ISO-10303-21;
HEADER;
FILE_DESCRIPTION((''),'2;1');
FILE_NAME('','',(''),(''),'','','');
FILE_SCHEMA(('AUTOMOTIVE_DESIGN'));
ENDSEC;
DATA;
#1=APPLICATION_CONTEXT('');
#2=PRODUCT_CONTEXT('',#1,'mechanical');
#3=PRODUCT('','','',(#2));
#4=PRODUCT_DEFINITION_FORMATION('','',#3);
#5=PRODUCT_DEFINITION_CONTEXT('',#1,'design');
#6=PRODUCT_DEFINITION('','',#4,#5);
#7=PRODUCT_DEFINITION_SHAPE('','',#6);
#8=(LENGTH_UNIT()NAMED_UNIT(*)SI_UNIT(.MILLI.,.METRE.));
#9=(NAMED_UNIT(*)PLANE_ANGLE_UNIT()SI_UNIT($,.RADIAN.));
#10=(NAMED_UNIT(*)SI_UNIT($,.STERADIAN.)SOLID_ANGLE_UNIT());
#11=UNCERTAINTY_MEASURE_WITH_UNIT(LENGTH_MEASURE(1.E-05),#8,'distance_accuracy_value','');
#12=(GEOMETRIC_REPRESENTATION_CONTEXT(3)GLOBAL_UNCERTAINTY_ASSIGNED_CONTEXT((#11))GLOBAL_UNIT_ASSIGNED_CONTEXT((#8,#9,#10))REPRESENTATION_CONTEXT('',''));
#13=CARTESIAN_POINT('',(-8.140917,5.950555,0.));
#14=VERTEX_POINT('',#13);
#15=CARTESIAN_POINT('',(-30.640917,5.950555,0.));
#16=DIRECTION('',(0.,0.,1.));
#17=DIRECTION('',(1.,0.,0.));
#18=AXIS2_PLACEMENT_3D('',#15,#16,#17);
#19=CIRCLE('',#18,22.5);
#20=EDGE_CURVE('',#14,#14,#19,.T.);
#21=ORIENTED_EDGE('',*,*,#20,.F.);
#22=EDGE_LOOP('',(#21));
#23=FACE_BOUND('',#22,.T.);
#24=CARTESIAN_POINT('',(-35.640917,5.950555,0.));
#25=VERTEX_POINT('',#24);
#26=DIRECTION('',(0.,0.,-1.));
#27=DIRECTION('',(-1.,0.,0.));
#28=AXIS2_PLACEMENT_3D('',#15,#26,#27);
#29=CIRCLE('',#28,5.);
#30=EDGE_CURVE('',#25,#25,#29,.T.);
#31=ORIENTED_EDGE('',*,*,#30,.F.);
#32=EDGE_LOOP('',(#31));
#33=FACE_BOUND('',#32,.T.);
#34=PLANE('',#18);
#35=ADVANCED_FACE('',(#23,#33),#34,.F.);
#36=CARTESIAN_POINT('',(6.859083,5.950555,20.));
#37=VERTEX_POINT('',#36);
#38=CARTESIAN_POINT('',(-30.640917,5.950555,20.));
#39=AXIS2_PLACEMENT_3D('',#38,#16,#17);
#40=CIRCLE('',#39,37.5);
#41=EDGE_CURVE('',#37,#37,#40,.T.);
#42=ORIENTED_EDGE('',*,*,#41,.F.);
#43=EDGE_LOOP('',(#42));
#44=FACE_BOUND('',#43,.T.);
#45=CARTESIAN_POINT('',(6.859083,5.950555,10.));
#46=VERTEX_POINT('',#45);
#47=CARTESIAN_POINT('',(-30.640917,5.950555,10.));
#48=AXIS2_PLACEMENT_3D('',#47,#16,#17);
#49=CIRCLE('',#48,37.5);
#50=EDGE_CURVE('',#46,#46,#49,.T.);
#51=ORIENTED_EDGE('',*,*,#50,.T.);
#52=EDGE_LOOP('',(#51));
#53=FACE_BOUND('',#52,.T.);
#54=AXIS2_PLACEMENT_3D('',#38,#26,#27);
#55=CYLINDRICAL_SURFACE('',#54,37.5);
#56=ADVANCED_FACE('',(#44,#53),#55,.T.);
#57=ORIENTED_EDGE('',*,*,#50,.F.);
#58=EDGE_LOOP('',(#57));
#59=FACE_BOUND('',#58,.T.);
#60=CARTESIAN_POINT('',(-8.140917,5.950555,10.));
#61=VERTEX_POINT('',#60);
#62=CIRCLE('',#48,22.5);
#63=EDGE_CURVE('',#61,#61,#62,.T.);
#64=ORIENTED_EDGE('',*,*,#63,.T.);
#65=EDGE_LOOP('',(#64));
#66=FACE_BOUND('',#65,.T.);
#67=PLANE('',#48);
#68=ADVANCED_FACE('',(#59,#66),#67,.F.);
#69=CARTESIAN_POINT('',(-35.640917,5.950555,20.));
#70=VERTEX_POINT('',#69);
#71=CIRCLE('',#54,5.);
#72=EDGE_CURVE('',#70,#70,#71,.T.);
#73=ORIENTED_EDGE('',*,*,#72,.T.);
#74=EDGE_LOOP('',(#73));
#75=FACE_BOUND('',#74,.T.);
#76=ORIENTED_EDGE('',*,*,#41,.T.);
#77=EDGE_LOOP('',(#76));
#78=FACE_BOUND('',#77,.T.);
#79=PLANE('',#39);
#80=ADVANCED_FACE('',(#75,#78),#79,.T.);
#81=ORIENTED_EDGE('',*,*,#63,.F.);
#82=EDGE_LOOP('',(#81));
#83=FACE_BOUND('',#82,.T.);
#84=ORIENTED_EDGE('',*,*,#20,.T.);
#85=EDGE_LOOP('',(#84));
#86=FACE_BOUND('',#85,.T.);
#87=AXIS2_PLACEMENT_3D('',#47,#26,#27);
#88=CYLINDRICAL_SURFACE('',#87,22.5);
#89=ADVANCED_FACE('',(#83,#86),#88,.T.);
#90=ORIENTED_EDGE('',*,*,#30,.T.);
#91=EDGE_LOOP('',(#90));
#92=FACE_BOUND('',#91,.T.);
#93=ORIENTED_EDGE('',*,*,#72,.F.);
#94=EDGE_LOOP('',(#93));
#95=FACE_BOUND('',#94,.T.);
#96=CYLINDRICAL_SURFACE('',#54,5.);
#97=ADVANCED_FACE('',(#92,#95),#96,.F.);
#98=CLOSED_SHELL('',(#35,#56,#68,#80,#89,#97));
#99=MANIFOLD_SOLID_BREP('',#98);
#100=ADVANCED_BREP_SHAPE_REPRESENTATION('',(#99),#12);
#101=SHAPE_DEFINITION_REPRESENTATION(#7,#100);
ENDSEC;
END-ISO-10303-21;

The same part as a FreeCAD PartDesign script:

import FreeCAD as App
import Part
import Sketcher
from FreeCAD import Vector
Q = App.Units.Quantity

doc = App.newDocument("Part")
body = doc.addObject("PartDesign::Body", "Body")

sketch1 = body.newObject("Sketcher::SketchObject", "Sketch")
sketch1.AttachmentSupport = (doc.getObject("XY_Plane"), [""])
sketch1.MapMode = "FlatFace"
sketch1.addGeometry(Part.Circle(Vector(-31, 6, 0), Vector(0, 0, 1), 22), False)
sketch1.addConstraint(Sketcher.Constraint("Diameter", 0, Q("45 mm")))
sketch1.addConstraint(Sketcher.Constraint("DistanceX", 0, 3, -1, 1, Q("30.640917 mm")))
sketch1.addConstraint(Sketcher.Constraint("DistanceY", -1, 1, 0, 3, Q("5.950555 mm")))
pad1 = body.newObject("PartDesign::Pad", "Pad")
pad1.Profile = sketch1
pad1.Length = 10

sketch2 = body.newObject("Sketcher::SketchObject", "Sketch001")
sketch2.AttachmentSupport = (doc.getObject("XY_Plane"), [""])
sketch2.MapMode = "FlatFace"
sketch2.AttachmentOffset = App.Placement(Vector(0, 0, 10), App.Rotation())
sketch2.addGeometry(Part.Circle(Vector(-31, 6, 0), Vector(0, 0, 1), 38), False)
sketch2.addConstraint(Sketcher.Constraint("Diameter", 0, Q("75 mm")))
sketch2.addConstraint(Sketcher.Constraint("DistanceX", 0, 3, -1, 1, Q("30.640917 mm")))
sketch2.addConstraint(Sketcher.Constraint("DistanceY", -1, 1, 0, 3, Q("5.950555 mm")))
pad2 = body.newObject("PartDesign::Pad", "Pad001")
pad2.Profile = sketch2
pad2.Length = 10

sketch3 = body.newObject("Sketcher::SketchObject", "Sketch002")
sketch3.AttachmentSupport = (doc.getObject("XY_Plane"), [""])
sketch3.MapMode = "FlatFace"
sketch3.addGeometry(Part.Circle(Vector(-31, 6, 0), Vector(0, 0, 1), 5), False)
sketch3.addConstraint(Sketcher.Constraint("Diameter", 0, Q("10 mm")))
sketch3.addConstraint(Sketcher.Constraint("DistanceX", 0, 3, -1, 1, Q("30.640917 mm")))
sketch3.addConstraint(Sketcher.Constraint("DistanceY", -1, 1, 0, 3, Q("5.950555 mm")))
pocket1 = body.newObject("PartDesign::Pocket", "Pocket")
pocket1.Profile = sketch3
pocket1.Length = 20
pocket1.Reversed = True

doc.recompute()
